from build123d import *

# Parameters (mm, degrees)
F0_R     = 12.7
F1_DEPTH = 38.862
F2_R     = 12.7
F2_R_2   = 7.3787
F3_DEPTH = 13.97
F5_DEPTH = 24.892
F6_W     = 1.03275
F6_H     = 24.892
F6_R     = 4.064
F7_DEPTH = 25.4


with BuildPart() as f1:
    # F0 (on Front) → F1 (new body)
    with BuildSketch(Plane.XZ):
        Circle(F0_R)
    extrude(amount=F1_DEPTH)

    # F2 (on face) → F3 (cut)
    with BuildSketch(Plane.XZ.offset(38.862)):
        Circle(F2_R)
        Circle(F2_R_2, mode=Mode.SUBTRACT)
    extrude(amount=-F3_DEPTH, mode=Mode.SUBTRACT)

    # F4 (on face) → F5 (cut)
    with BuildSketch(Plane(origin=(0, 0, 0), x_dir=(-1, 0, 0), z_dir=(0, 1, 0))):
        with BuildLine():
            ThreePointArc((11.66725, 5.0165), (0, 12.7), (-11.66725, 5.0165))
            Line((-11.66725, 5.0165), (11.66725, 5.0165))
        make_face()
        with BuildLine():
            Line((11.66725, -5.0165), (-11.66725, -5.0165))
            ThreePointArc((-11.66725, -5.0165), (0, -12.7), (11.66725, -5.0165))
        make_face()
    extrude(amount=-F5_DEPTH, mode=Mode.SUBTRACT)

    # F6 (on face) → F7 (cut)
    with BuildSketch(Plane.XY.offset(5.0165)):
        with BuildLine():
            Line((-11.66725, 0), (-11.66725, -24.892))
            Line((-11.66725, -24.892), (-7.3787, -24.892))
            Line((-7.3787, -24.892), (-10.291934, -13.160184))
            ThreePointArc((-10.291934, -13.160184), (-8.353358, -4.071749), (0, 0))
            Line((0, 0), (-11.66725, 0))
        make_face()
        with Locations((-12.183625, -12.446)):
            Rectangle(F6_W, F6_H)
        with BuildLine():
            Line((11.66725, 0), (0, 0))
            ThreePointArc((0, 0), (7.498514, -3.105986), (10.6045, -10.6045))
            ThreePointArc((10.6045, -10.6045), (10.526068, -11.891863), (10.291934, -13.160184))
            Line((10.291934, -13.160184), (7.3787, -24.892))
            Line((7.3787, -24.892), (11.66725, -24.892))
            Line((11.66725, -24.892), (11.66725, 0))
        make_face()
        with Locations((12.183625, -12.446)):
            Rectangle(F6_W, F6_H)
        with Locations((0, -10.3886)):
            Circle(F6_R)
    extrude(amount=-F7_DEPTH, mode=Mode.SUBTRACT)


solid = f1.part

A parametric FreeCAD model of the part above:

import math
import FreeCAD as App
import Part
import Sketcher

V = App.Vector
Q = App.Units.Quantity

doc = App.newDocument("Part")
params = doc.addObject("Spreadsheet::Sheet", "Params")
for row, (alias, value) in enumerate([
    ("sketch1_diameter", "1 in"),
    ("pad1_length", "1.53 in"),
    ("sketch2_diameter", "1 in"),
    ("sketch2_diameter2", "0.581 in"),
    ("pocket1_length", "0.55 in"),
    ("sketch3_radius", "0.5 in"),
    ("pocket2_length", "0.98 in"),
    ("sketch4_diameter", "0.32 in"),
    ("sketch4_width", "0.5 in"),
    ("sketch4_width2", "0.5 in"),
    ("sketch4_height", "0.98 in"),
    ("sketch4_height2", "0.98 in"),
    ("pocket3_length", "1 in"),
], start=1):
    params.set(f"A{row}", alias)
    params.set(f"B{row}", "=" + value)
    params.setAlias(f"B{row}", alias)

body = doc.addObject("PartDesign::Body", "Body")

# Sketch on XZ plane
sketch1 = body.newObject("Sketcher::SketchObject", "Sketch")
sketch1.AttachmentSupport = (doc.getObject("XZ_Plane"), [""])
sketch1.MapMode = "FlatFace"
sketch1.addGeometry(Part.Circle(V(0, 0, 0), V(0, 0, 1), 13), False)
sketch1.addConstraint([
    Sketcher.Constraint("Coincident", 0, 3, -1, 1),
    Sketcher.Constraint("Diameter", 0, Q("1 in")),
])
sketch1.setExpression("Constraints[1]", "Params.sketch1_diameter")
pad1 = body.newObject("PartDesign::Pad", "Pad")
pad1.Profile = sketch1
pad1.setExpression("Length", "Params.pad1_length")

# Sketch on XZ plane
sketch2 = body.newObject("Sketcher::SketchObject", "Sketch001")
sketch2.AttachmentSupport = (doc.getObject("XZ_Plane"), [""])
sketch2.MapMode = "FlatFace"
sketch2.AttachmentOffset = App.Placement(V(0, 0, 1.53 * 25.4), App.Rotation())
sketch2.addGeometry([
    Part.Circle(V(0, 0, 0), V(0, 0, 1), 13),
    Part.Circle(V(0, 0, 0), V(0, 0, 1), 7),
], False)
sketch2.addConstraint([
    Sketcher.Constraint("Coincident", 0, 3, -1, 1),
    Sketcher.Constraint("Coincident", 1, 3, -1, 1),
    Sketcher.Constraint("Diameter", 0, Q("1 in")),
    Sketcher.Constraint("Diameter", 1, Q("0.581 in")),
])
sketch2.setExpression("Constraints[2]", "Params.sketch2_diameter")
sketch2.setExpression("Constraints[3]", "Params.sketch2_diameter2")
pocket1 = body.newObject("PartDesign::Pocket", "Pocket")
pocket1.Profile = sketch2
pocket1.setExpression("Length", "Params.pocket1_length")

# Sketch on XZ plane
sketch3 = body.newObject("Sketcher::SketchObject", "Sketch002")
sketch3.AttachmentSupport = (doc.getObject("XZ_Plane"), [""])
sketch3.MapMode = "FlatFace"
sketch3.addGeometry([
    Part.ArcOfCircle(Part.Circle(V(0, 0, 0), V(0, 0, 1), 13), math.radians(23), math.radians(157)),
    Part.LineSegment(V(12, 5, 0), V(-12, 5, 0)),
    Part.LineSegment(V(-12, -5, 0), V(12, -5, 0)),
    Part.ArcOfCircle(Part.Circle(V(0, 0, 0), V(0, 0, 1), 13), math.radians(-157), math.radians(-23)),
], False)
sketch3.addConstraint([
    Sketcher.Constraint("Coincident", 0, 1, 1, 1),
    Sketcher.Constraint("Coincident", 1, 2, 0, 2),
    Sketcher.Constraint("Coincident", 2, 1, 3, 1),
    Sketcher.Constraint("Coincident", 3, 2, 2, 2),
    Sketcher.Constraint("Horizontal", 1),
    Sketcher.Constraint("Horizontal", 2),
    Sketcher.Constraint("Coincident", 0, 3, -1, 1),
    Sketcher.Constraint("Coincident", 3, 3, -1, 1),
    Sketcher.Constraint("Equal", 0, 3),
    Sketcher.Constraint("Vertical", 1, 2, 2, 1),
    Sketcher.Constraint("Radius", 0, Q("0.5 in")),
    Sketcher.Constraint("DistanceY", 2, 1, 1, 2, Q("0.395 in")),
])
sketch3.setExpression("Constraints[10]", "Params.sketch3_radius")
pocket2 = body.newObject("PartDesign::Pocket", "Pocket001")
pocket2.Profile = sketch3
pocket2.setExpression("Length", "Params.pocket2_length")
pocket2.Reversed = True

# Sketch on XY plane
sketch4 = body.newObject("Sketcher::SketchObject", "Sketch003")
sketch4.AttachmentSupport = (doc.getObject("XY_Plane"), [""])
sketch4.MapMode = "FlatFace"
sketch4.AttachmentOffset = App.Placement(V(0, 0, 0.1975 * 25.4), App.Rotation())
sketch4.addGeometry([
    Part.LineSegment(V(-7.3787, -24.892, 0), V(-10.291934, -13.160184, 0)),  # 0
    Part.ArcOfCircle(Part.Circle(V(0, -10.6045, 0), V(0, 0, 1), 10.6045), math.radians(89.999998), math.radians(193.945566)),  # 1
    Part.LineSegment(V(0, 0, 0), V(-12.7, 0, 0)),  # 2
    Part.LineSegment(V(-12.7, 0, 0), V(-12.7, -24.892, 0)),  # 3
    Part.LineSegment(V(-12.7, -24.892, 0), V(-7.3787, -24.892, 0)),  # 4
    Part.ArcOfCircle(Part.Circle(V(0, -10.6045, 0), V(0, 0, 1), 10.6045), math.radians(-0.000003), math.radians(90.000003)),  # 5
    Part.ArcOfCircle(Part.Circle(V(-0.000077, -10.604492, 0), V(0, 0, 1), 10.604577), math.radians(-13.945508), math.radians(-0.000045)),  # 6
    Part.LineSegment(V(10.291934, -13.160184, 0), V(7.3787, -24.892, 0)),  # 7
    Part.LineSegment(V(7.3787, -24.892, 0), V(12.7, -24.892, 0)),  # 8
    Part.LineSegment(V(12.7, -24.892, 0), V(12.7, 0, 0)),  # 9
    Part.LineSegment(V(12.7, 0, 0), V(0, 0, 0)),  # 10
    Part.Circle(V(0, -10.3886, 0), V(0, 0, 1), 4.064),  # 11
], False)
sketch4.addConstraint([
    Sketcher.Constraint("Coincident", 0, 2, 1, 2),
    Sketcher.Constraint("Coincident", 1, 1, 2, 1),
    Sketcher.Constraint("Coincident", 2, 2, 3, 1),
    Sketcher.Constraint("Coincident", 3, 2, 4, 1),
    Sketcher.Constraint("Coincident", 4, 2, 0, 1),
    Sketcher.Constraint("Coincident", 5, 1, 6, 2),
    Sketcher.Constraint("Coincident", 6, 1, 7, 1),
    Sketcher.Constraint("Coincident", 7, 2, 8, 1),
    Sketcher.Constraint("Coincident", 8, 2, 9, 1),
    Sketcher.Constraint("Coincident", 9, 2, 10, 1),
    Sketcher.Constraint("Coincident", 10, 2, 5, 2),
    Sketcher.Constraint("Horizontal", 2),
    Sketcher.Constraint("Vertical", 3),
    Sketcher.Constraint("Horizontal", 4),
    Sketcher.Constraint("Horizontal", 8),
    Sketcher.Constraint("Vertical", 9),
    Sketcher.Constraint("Horizontal", 10),
    Sketcher.Constraint("Coincident", 1, 1, -1, 1),
    Sketcher.Constraint("Coincident", 10, 2, -1, 1),
    Sketcher.Constraint("Coincident", 5, 3, 1, 3),
    Sketcher.Constraint("PointOnObject", 1, 3, -2),
    Sketcher.Constraint("PointOnObject", 11, 3, -2),
    Sketcher.Constraint("Diameter", 11, Q("0.32 in")),
    Sketcher.Constraint("DistanceX", 2, 2, 2, 1, Q("0.5 in")),
    Sketcher.Constraint("DistanceX", 10, 2, 10, 1, Q("0.5 in")),
    Sketcher.Constraint("DistanceY", 3, 2, 3, 1, Q("0.98 in")),
    Sketcher.Constraint("DistanceY", 9, 1, 9, 2, Q("0.98 in")),
    Sketcher.Constraint("Radius", 1, Q("0.4175 in")),
    Sketcher.Constraint("DistanceX", 4, 1, 4, 2, Q("0.2095 in")),
    Sketcher.Constraint("DistanceX", 8, 1, 8, 2, Q("0.2095 in")),
    Sketcher.Constraint("DistanceY", 11, 3, -1, 1, Q("0.409 in")),
    Sketcher.Constraint("DistanceY", 7, 2, 5, 1, Q("0.5625 in")),
    Sketcher.Constraint("Radius", 6, 10.604577),
    Sketcher.Constraint("Distance", 0, 12.088111),
    Sketcher.Constraint("Distance", 7, 12.088111),
    Sketcher.Constraint("DistanceY", 6, 3, -1, 1, 10.604492),
])
sketch4.setExpression("Constraints[22]", "Params.sketch4_diameter")
sketch4.setExpression("Constraints[23]", "Params.sketch4_width")
sketch4.setExpression("Constraints[24]", "Params.sketch4_width2")
sketch4.setExpression("Constraints[25]", "Params.sketch4_height")
sketch4.setExpression("Constraints[26]", "Params.sketch4_height2")
pocket3 = body.newObject("PartDesign::Pocket", "Pocket002")
pocket3.Profile = sketch4
pocket3.setExpression("Length", "Params.pocket3_length")

doc.recompute()
